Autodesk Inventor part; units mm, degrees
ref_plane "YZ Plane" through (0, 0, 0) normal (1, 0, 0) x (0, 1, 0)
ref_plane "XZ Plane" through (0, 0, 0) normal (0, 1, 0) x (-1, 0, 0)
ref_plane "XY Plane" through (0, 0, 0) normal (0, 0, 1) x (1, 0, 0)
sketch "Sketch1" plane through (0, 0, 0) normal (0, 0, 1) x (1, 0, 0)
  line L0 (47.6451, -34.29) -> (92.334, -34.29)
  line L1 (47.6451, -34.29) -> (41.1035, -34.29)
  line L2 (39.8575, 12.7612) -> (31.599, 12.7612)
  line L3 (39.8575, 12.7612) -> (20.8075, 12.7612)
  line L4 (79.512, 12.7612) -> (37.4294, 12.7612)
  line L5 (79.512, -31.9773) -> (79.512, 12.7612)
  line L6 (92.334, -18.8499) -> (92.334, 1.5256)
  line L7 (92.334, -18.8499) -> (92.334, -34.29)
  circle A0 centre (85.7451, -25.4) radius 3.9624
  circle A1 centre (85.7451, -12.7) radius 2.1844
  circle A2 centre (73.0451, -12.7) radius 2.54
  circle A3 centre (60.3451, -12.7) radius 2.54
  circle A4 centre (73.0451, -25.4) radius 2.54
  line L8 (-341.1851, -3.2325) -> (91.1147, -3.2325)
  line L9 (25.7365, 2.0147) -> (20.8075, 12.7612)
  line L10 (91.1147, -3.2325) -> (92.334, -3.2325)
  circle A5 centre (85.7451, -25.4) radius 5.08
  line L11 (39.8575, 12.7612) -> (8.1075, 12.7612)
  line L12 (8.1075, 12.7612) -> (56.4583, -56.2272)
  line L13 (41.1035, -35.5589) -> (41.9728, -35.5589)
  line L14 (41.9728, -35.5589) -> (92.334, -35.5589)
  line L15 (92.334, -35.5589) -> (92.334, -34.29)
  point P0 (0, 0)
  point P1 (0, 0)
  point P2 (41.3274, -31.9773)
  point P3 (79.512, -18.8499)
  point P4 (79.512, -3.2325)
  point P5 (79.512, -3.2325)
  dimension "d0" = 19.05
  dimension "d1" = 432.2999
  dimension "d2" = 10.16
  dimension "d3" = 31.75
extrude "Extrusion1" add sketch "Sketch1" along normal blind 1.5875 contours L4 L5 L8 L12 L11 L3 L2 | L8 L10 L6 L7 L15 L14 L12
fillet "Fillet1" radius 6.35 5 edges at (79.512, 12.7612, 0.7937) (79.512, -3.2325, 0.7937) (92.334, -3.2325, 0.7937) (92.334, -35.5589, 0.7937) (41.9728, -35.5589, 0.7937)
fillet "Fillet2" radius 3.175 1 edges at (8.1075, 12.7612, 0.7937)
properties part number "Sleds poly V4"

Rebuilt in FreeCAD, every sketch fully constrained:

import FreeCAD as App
import Part
import Sketcher
Q = App.Units.Quantity


def edges_at(feature, points):
    """Names of the edges that pass closest to the given points."""
    edges = feature.Shape.Edges
    near = lambda p: min(range(len(edges)), key=lambda i: edges[i].distToShape(Part.Vertex(*p))[0])
    return sorted({f"Edge{near(p) + 1}" for p in points})

doc = App.newDocument("Part")
params = doc.addObject("Spreadsheet::Sheet", "Params")
for row, (alias, value) in enumerate([
    ("sketch1_diameter", "0.4 in"),
    ("sketch1_diameter2", "0.2 in"),
    ("sketch1_diameter3", "0.172 in"),
    ("pad1_length", "0.0625 in"),
    ("fillet_radius", "0.25 in"),
    ("fillet2_radius", "0.125 in"),
], start=1):
    params.set(f"A{row}", alias)
    params.set(f"B{row}", "=" + value)
    params.setAlias(f"B{row}", alias)

body = doc.addObject("PartDesign::Body", "Body")

# Sketch on XY plane
sketch1 = doc.addObject("Sketcher::SketchObject", "Sketch")
body.addObject(sketch1)
sketch1.AttachmentSupport = (doc.XY_Plane, [""])
sketch1.MapMode = "FlatFace"
sketch1.addGeometry([
    Part.LineSegment(App.Vector(79.5, 12.8, 0), App.Vector(8.1, 12.8, 0)),  # 0
    Part.LineSegment(App.Vector(8.1, 12.8, 0), App.Vector(42, -35.6, 0)),  # 1
    Part.LineSegment(App.Vector(42, -35.6, 0), App.Vector(92.3, -35.6, 0)),  # 2
    Part.LineSegment(App.Vector(92.3, -35.6, 0), App.Vector(92.3, -3.2, 0)),  # 3
    Part.LineSegment(App.Vector(92.3, -3.2, 0), App.Vector(79.5, -3.2, 0)),  # 4
    Part.LineSegment(App.Vector(79.5, -3.2, 0), App.Vector(79.5, 12.8, 0)),  # 5
    Part.Circle(App.Vector(85.7, -12.7, 0), App.Vector(0, 0, 1), 2.2),  # 6
    Part.Circle(App.Vector(73, -25.4, 0), App.Vector(0, 0, 1), 2.5),  # 7
    Part.Circle(App.Vector(85.7, -25.4, 0), App.Vector(0, 0, 1), 5.1),  # 8
    Part.Circle(App.Vector(60.3, -12.7, 0), App.Vector(0, 0, 1), 2.5),  # 9
    Part.Circle(App.Vector(73, -12.7, 0), App.Vector(0, 0, 1), 2.5),  # 10
], False)
sketch1.addConstraint([
    Sketcher.Constraint("Coincident", 0, 2, 1, 1),
    Sketcher.Constraint("Coincident", 1, 2, 2, 1),
    Sketcher.Constraint("Coincident", 2, 2, 3, 1),
    Sketcher.Constraint("Coincident", 3, 2, 4, 1),
    Sketcher.Constraint("Coincident", 4, 2, 5, 1),
    Sketcher.Constraint("Coincident", 5, 2, 0, 1),
    Sketcher.Constraint("Horizontal", 0),
    Sketcher.Constraint("Horizontal", 2),
    Sketcher.Constraint("Vertical", 3),
    Sketcher.Constraint("Horizontal", 4),
    Sketcher.Constraint("Vertical", 5),
    Sketcher.Constraint("Equal", 7, 9),
    Sketcher.Constraint("Equal", 9, 10),
    Sketcher.Constraint("Horizontal", 7, 3, 8, 3),
    Sketcher.Constraint("Horizontal", 6, 3, 9, 3),
    Sketcher.Constraint("Horizontal", 9, 3, 10, 3),
    Sketcher.Constraint("Vertical", 6, 3, 8, 3),
    Sketcher.Constraint("Vertical", 7, 3, 10, 3),
    Sketcher.Constraint("Diameter", 8, Q("0.4 in")),
    Sketcher.Constraint("Diameter", 7, Q("0.2 in")),
    Sketcher.Constraint("Diameter", 6, Q("0.172 in")),
    Sketcher.Constraint("DistanceY", 7, 3, -1, 1, Q("1 in")),
    Sketcher.Constraint("DistanceX", 9, 3, 6, 3, Q("1 in")),
    Sketcher.Constraint("DistanceY", 6, 3, -1, 1, Q("0.5 in")),
    Sketcher.Constraint("DistanceX", 7, 3, 6, 3, Q("0.5 in")),
    Sketcher.Constraint("DistanceX", 0, 2, 0, 1, Q("2.8112 in")),
    Sketcher.Constraint("DistanceX", 4, 2, 4, 1, Q("0.5048 in")),
    Sketcher.Constraint("DistanceY", 3, 1, 3, 2, Q("1.2727 in")),
    Sketcher.Constraint("DistanceX", 2, 1, 2, 2, 50.3612),
    Sketcher.Constraint("DistanceY", 5, 1, 5, 2, 15.9937),
    Sketcher.Constraint("DistanceX", -1, 1, 6, 3, Q("3.3758 in")),
    Sketcher.Constraint("DistanceX", -1, 1, 0, 2, Q("0.3192 in")),
    Sketcher.Constraint("DistanceY", -1, 1, 0, 2, Q("0.5024 in")),
])
sketch1.setExpression("Constraints[18]", "Params.sketch1_diameter")
sketch1.setExpression("Constraints[19]", "Params.sketch1_diameter2")
sketch1.setExpression("Constraints[20]", "Params.sketch1_diameter3")
pad1 = doc.addObject("PartDesign::Pad", "Pad")
body.addObject(pad1)
pad1.Profile = sketch1
pad1.setExpression("Length", "Params.pad1_length")
doc.recompute()

fillet = doc.addObject("PartDesign::Fillet", "Fillet")
body.addObject(fillet)
fillet.Base = (pad1, edges_at(pad1, [
    (79.512, 12.761, 0.794),
    (79.512, -3.232, 0.794),
    (92.334, -3.232, 0.794),
    (92.334, -35.559, 0.794),
    (41.973, -35.559, 0.794),
]))
fillet.setExpression("Radius", "Params.fillet_radius")
doc.recompute()

fillet2 = doc.addObject("PartDesign::Fillet", "Fillet001")
body.addObject(fillet2)
fillet2.Base = (fillet, edges_at(fillet, [(8.107, 12.761, 0.794)]))
fillet2.setExpression("Radius", "Params.fillet2_radius")

doc.recompute()
